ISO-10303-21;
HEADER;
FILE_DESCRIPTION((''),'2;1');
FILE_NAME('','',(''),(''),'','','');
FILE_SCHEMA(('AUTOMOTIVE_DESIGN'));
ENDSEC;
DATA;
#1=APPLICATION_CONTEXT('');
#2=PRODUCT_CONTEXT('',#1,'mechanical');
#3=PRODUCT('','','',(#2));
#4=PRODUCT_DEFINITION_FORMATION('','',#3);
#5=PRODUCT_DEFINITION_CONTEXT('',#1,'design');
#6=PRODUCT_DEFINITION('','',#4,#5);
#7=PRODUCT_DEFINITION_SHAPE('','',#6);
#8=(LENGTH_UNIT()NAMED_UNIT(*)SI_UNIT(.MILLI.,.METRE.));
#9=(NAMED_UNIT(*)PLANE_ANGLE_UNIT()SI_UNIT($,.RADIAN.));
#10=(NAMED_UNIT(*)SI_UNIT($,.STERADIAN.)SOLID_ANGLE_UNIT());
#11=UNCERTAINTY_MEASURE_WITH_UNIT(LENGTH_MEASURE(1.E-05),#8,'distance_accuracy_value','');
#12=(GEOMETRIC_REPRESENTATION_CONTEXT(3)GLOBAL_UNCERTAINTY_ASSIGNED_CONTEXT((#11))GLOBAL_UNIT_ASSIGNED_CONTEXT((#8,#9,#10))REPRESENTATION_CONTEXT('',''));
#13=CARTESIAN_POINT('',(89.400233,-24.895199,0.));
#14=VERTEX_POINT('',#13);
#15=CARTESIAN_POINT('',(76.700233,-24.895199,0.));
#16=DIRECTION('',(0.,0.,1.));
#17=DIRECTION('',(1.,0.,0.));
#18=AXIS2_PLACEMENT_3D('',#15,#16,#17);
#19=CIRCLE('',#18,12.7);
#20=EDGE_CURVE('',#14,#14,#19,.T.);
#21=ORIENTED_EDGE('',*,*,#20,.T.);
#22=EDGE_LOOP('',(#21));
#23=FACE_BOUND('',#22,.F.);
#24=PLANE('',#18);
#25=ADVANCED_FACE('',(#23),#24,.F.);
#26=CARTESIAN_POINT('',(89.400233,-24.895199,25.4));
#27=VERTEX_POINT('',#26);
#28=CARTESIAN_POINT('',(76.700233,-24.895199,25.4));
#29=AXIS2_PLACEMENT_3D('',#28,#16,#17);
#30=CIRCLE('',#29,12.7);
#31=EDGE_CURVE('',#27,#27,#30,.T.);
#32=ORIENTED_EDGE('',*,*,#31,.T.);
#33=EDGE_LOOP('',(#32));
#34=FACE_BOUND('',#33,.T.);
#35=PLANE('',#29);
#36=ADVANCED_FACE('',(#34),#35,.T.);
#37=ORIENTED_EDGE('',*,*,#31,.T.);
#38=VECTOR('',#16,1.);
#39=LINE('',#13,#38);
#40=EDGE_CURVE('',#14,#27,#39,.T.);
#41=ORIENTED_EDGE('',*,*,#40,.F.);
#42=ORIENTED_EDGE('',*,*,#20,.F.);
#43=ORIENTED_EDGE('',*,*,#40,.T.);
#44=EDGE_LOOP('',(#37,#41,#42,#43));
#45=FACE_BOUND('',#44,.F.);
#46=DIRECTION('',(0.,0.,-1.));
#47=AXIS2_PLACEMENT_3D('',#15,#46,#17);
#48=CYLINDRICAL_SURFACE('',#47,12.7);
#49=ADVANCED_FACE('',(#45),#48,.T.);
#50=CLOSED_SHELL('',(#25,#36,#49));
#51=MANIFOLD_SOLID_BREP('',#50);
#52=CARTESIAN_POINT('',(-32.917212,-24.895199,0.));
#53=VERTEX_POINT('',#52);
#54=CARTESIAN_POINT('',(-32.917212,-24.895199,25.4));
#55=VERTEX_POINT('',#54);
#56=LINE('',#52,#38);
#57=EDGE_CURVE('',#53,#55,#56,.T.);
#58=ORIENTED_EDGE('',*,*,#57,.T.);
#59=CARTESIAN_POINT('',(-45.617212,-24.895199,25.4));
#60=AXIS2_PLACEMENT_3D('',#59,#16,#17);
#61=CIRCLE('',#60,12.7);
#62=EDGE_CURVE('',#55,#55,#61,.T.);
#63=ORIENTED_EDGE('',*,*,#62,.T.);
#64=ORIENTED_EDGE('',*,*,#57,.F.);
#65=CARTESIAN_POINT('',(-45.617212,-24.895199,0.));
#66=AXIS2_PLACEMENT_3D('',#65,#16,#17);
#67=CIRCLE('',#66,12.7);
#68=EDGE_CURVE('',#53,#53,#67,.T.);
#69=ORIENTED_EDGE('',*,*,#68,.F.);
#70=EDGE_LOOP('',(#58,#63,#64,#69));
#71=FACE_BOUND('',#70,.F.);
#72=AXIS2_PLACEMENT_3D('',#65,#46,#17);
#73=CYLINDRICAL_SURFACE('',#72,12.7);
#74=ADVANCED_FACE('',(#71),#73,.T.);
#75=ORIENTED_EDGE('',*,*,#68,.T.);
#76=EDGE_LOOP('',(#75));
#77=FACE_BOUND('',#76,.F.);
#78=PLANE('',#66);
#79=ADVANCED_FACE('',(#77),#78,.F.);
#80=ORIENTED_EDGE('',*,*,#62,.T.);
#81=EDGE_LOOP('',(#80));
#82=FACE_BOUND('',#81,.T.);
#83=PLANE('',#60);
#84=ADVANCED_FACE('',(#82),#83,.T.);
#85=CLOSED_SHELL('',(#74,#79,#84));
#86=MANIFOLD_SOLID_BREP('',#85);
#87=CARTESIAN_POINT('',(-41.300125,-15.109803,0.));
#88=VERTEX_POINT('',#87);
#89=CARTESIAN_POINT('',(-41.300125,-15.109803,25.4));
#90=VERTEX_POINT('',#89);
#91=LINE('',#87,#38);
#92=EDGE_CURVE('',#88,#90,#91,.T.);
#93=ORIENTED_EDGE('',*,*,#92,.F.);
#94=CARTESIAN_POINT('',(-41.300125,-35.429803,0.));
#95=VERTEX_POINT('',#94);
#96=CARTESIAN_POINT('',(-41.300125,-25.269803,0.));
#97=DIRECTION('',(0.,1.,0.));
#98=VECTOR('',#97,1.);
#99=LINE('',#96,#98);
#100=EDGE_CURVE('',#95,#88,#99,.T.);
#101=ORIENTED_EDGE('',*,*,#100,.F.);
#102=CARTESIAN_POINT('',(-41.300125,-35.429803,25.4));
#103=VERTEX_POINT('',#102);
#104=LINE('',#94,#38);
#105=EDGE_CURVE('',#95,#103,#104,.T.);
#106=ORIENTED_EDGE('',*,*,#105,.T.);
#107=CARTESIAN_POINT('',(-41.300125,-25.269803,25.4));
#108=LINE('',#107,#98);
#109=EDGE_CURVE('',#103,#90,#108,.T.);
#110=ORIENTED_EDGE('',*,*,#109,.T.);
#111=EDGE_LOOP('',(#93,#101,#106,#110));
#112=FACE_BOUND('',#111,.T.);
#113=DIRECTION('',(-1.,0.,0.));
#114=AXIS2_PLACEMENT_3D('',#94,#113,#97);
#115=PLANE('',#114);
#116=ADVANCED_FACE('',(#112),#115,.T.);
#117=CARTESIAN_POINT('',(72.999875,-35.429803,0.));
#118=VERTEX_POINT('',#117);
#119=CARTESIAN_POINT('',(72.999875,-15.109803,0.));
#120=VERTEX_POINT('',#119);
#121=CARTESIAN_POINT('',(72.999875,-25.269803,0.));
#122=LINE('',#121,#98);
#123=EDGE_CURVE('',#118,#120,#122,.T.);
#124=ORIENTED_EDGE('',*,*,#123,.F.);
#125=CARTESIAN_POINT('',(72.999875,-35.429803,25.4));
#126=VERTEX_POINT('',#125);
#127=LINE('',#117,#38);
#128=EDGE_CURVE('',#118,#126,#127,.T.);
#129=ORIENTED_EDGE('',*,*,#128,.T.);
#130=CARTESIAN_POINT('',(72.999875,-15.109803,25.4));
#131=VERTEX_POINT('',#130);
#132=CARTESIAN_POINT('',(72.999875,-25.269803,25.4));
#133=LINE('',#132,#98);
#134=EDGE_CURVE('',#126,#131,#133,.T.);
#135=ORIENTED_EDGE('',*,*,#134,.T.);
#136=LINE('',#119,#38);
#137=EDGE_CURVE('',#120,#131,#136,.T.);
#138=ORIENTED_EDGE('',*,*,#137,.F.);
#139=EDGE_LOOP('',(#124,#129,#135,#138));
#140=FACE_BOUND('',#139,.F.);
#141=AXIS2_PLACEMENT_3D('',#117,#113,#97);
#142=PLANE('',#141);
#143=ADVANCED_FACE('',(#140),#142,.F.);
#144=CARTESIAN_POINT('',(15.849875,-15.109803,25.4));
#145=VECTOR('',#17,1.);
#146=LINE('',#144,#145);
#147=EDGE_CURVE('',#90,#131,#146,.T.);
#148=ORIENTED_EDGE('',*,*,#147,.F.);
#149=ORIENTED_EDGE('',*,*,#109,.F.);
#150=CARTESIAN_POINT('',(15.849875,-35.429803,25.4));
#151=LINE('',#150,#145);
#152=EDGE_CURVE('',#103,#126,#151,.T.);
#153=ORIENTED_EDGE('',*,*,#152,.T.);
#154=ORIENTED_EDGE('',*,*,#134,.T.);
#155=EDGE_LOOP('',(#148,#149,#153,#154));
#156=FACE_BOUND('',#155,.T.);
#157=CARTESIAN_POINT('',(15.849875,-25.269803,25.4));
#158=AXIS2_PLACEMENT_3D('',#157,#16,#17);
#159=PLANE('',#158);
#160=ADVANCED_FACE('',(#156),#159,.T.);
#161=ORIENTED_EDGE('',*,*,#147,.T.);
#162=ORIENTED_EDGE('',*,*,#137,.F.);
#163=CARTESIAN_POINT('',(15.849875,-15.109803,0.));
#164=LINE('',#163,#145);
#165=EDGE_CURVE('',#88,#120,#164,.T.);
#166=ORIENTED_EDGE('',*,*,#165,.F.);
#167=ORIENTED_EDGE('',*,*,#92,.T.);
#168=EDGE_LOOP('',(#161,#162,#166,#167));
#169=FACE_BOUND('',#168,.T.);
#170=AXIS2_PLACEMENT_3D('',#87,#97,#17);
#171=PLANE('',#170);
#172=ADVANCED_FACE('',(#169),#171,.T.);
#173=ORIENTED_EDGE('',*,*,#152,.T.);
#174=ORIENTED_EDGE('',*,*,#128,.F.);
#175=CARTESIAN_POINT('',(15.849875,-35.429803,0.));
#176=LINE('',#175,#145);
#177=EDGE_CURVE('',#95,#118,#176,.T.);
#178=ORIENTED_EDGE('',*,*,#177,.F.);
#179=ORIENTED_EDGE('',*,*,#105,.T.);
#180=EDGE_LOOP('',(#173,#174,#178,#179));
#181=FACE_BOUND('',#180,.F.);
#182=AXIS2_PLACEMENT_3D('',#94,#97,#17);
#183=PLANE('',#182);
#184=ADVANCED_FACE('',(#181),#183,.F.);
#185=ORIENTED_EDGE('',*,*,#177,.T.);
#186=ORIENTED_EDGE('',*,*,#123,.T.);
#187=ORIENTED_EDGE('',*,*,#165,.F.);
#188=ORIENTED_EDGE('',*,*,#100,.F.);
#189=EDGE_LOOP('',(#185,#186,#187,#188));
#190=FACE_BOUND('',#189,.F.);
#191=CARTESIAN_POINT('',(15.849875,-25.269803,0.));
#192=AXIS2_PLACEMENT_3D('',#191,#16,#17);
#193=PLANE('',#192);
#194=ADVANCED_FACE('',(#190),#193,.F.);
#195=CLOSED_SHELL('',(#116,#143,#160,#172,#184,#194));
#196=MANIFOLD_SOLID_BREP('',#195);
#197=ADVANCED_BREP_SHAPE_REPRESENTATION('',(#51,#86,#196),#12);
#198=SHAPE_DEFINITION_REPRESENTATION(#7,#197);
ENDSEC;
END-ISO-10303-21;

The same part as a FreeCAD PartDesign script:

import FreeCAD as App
import Part
import Sketcher

V = App.Vector
Q = App.Units.Quantity

doc = App.newDocument("Part")
body = doc.addObject("PartDesign::Body", "Body")

sketch1 = body.newObject("Sketcher::SketchObject", "Sketch")
sketch1.AttachmentSupport = (doc.getObject("XY_Plane"), [""])
sketch1.MapMode = "FlatFace"
sketch1.addGeometry(Part.Circle(V(-46, -25, 0), V(0, 0, 1), 13), False)
sketch1.addConstraint([
    Sketcher.Constraint("Diameter", 0, Q("1 in")),
    Sketcher.Constraint("DistanceY", 0, 3, -1, 1, Q("24.895199 mm")),
    Sketcher.Constraint("DistanceX", 0, 3, -1, 1, Q("45.617212 mm")),
])
pad1 = body.newObject("PartDesign::Pad", "Pad")
pad1.Profile = sketch1
pad1.Length = Q("1 in")
body2 = doc.addObject("PartDesign::Body", "Body001")

sketch2 = body2.newObject("Sketcher::SketchObject", "Sketch001")
sketch2.AttachmentSupport = (doc.getObject("XY_Plane001"), [""])
sketch2.MapMode = "FlatFace"
sketch2.addGeometry(Part.Circle(V(77, -25, 0), V(0, 0, 1), 13), False)
sketch2.addConstraint([
    Sketcher.Constraint("Diameter", 0, Q("1 in")),
    Sketcher.Constraint("DistanceY", 0, 3, -1, 1, Q("24.895199 mm")),
    Sketcher.Constraint("DistanceX", -1, 1, 0, 3, Q("76.700233 mm")),
])
pad2 = body2.newObject("PartDesign::Pad", "Pad001")
pad2.Profile = sketch2
pad2.Length = Q("1 in")
body3 = doc.addObject("PartDesign::Body", "Body002")

sketch3 = body3.newObject("Sketcher::SketchObject", "Sketch002")
sketch3.AttachmentSupport = (doc.getObject("XY_Plane002"), [""])
sketch3.MapMode = "FlatFace"
sketch3.addGeometry([
    Part.LineSegment(V(-41, -15, 0), V(-41, -35, 0)),
    Part.LineSegment(V(-41, -35, 0), V(73, -35, 0)),
    Part.LineSegment(V(73, -35, 0), V(73, -15, 0)),
    Part.LineSegment(V(73, -15, 0), V(-41, -15, 0)),
], False)
sketch3.addConstraint([
    Sketcher.Constraint("Coincident", 0, 2, 1, 1),
    Sketcher.Constraint("Coincident", 1, 2, 2, 1),
    Sketcher.Constraint("Coincident", 2, 2, 3, 1),
    Sketcher.Constraint("Coincident", 3, 2, 0, 1),
    Sketcher.Constraint("Vertical", 0),
    Sketcher.Constraint("Horizontal", 1),
    Sketcher.Constraint("Vertical", 2),
    Sketcher.Constraint("Horizontal", 3),
    Sketcher.Constraint("DistanceX", 1, 1, 1, 2, Q("4.5 in")),
    Sketcher.Constraint("DistanceY", 0, 2, 0, 1, Q("0.8 in")),
    Sketcher.Constraint("DistanceX", 0, 2, -1, 1, Q("41.300125 mm")),
    Sketcher.Constraint("DistanceY", 0, 2, -1, 1, Q("35.429803 mm")),
])
pad3 = body3.newObject("PartDesign::Pad", "Pad002")
pad3.Profile = sketch3
pad3.Length = Q("1 in")

doc.recompute()
